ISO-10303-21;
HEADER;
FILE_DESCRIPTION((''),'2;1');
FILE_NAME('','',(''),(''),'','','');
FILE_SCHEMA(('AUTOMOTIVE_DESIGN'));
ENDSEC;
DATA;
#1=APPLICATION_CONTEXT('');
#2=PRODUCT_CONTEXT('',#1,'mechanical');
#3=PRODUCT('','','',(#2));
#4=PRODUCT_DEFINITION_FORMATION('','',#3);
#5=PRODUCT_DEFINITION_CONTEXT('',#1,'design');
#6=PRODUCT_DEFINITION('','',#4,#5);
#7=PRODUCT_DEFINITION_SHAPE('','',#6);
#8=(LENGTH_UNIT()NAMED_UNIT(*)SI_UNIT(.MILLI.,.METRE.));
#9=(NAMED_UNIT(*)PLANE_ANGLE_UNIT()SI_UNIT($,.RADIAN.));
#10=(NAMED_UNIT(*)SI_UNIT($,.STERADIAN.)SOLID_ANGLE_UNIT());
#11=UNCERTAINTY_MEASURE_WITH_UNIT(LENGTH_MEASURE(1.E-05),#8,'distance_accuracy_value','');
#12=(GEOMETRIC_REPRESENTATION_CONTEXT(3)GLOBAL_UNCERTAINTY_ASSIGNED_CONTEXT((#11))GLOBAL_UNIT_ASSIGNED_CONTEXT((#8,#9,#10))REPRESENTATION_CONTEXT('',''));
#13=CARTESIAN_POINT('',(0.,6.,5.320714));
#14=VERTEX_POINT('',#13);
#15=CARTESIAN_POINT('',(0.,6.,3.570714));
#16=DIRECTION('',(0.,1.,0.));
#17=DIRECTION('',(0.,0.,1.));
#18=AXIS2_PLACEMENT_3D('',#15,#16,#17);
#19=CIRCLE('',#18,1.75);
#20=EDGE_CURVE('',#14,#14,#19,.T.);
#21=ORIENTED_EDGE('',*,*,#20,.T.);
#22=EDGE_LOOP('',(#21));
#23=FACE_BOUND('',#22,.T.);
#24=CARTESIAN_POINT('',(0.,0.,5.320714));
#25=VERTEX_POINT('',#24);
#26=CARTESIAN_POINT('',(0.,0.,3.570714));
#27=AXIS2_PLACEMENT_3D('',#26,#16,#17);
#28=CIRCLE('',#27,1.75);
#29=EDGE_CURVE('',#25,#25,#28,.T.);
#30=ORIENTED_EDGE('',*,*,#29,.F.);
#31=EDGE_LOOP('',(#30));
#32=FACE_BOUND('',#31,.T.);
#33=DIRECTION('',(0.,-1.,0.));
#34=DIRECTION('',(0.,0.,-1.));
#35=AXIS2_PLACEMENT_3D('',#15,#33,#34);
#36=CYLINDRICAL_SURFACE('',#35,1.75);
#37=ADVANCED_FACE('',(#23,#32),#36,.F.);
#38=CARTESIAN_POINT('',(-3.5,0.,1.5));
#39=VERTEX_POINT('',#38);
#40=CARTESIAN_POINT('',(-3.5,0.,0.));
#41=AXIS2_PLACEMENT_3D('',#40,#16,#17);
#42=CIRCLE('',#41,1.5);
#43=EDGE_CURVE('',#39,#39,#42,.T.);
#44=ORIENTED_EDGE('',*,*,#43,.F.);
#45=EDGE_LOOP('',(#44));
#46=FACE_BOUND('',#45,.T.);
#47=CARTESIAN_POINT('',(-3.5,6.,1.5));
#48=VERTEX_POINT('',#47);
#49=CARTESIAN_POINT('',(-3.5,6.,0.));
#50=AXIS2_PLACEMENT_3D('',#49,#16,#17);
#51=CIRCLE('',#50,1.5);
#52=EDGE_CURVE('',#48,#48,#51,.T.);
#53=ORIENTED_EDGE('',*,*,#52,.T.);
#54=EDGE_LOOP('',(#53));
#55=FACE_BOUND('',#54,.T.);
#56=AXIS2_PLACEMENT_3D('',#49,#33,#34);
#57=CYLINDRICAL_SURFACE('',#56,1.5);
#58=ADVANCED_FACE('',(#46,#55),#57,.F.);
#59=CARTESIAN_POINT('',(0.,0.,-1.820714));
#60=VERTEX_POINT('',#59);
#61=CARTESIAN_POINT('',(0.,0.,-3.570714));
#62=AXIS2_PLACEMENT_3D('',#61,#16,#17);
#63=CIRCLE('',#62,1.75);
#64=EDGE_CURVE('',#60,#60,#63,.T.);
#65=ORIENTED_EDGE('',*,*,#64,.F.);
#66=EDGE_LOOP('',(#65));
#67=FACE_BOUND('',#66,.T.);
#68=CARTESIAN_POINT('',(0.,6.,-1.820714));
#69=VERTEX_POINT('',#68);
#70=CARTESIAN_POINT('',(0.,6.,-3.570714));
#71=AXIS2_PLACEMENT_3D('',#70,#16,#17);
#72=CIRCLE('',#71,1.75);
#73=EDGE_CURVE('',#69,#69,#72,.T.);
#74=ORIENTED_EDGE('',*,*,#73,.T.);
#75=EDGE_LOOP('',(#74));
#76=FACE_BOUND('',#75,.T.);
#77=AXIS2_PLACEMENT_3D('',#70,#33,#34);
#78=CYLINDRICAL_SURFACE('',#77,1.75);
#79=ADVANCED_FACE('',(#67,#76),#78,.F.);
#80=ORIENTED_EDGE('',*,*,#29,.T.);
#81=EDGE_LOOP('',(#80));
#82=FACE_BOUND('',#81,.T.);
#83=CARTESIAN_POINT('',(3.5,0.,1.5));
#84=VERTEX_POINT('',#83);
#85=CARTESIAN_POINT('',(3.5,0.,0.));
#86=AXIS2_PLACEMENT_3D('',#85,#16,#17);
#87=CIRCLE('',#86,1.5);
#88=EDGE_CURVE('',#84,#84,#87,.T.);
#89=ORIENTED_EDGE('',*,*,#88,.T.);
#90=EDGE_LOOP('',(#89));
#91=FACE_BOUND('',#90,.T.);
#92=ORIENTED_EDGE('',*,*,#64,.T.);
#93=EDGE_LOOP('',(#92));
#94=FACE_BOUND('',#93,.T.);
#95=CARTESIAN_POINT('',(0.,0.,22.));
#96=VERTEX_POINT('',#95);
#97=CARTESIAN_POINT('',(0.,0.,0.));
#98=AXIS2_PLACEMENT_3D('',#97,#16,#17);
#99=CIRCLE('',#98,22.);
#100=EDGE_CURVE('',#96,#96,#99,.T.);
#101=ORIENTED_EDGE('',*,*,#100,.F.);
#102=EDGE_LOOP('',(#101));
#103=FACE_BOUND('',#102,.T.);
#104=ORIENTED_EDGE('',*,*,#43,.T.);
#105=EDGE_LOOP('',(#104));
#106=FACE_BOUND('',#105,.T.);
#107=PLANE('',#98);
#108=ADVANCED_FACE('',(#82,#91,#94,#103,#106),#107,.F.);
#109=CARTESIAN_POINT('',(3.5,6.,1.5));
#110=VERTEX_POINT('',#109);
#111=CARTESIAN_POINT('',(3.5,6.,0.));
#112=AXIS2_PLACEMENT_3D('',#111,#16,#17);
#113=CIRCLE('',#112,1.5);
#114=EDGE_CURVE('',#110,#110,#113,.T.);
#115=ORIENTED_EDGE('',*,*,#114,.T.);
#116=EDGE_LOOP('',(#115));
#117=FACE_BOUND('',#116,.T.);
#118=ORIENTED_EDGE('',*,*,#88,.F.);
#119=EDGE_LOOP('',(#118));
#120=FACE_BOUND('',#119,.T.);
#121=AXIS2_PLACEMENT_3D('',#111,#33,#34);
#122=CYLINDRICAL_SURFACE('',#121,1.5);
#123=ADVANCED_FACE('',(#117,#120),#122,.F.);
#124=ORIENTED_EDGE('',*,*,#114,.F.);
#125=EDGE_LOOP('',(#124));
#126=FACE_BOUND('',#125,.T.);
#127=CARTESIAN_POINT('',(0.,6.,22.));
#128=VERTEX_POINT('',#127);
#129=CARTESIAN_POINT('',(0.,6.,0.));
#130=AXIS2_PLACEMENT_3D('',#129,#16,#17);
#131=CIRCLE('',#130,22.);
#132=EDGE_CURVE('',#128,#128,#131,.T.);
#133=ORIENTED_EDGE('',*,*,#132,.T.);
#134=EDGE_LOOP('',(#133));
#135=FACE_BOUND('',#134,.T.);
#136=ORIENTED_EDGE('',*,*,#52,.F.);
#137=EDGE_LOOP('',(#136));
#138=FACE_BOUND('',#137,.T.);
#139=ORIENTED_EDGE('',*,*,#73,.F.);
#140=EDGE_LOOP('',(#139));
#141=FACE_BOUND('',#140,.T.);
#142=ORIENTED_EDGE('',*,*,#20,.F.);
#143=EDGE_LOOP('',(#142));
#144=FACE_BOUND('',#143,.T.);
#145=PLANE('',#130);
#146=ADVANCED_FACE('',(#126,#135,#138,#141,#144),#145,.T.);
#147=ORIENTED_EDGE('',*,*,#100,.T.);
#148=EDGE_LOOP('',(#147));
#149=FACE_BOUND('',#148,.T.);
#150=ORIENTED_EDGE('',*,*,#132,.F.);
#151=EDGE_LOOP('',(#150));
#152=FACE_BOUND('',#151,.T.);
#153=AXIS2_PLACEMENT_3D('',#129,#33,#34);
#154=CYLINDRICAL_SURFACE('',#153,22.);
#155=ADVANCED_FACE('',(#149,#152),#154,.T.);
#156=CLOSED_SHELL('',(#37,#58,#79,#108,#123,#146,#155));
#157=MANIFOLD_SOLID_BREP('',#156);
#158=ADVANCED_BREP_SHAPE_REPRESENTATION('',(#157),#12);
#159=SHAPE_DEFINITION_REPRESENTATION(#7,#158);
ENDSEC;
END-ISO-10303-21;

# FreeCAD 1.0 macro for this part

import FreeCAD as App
import Part
import Sketcher
from FreeCAD import Vector

doc = App.newDocument("Part")
body = doc.addObject("PartDesign::Body", "Body")

# Sketch on XZ plane
sketch1 = body.newObject("Sketcher::SketchObject", "Sketch")
sketch1.AttachmentSupport = (doc.getObject("XZ_Plane"), [""])
sketch1.MapMode = "FlatFace"
sketch1.addGeometry([
    Part.Circle(Vector(0, 0, 0), Vector(0, 0, 1), 22),  # 0
    Part.Circle(Vector(0, 3.6, 0), Vector(0, 0, 1), 1.8),  # 1
    Part.Circle(Vector(-3.5, 0, 0), Vector(0, 0, 1), 1.5),  # 2
    Part.Circle(Vector(3.5, 0, 0), Vector(0, 0, 1), 1.5),  # 3
    Part.Circle(Vector(0, -3.6, 0), Vector(0, 0, 1), 1.8),  # 4
], False)
sketch1.addConstraint([
    Sketcher.Constraint("Coincident", 0, 3, -1, 1),
    Sketcher.Constraint("Equal", 2, 3),
    Sketcher.Constraint("Equal", 1, 4),
    Sketcher.Constraint("Symmetric", 2, 3, 3, 3, -1, 1),
    Sketcher.Constraint("Symmetric", 1, 3, 4, 3, -1, 1),
    Sketcher.Constraint("PointOnObject", 1, 3, -2),
    Sketcher.Constraint("PointOnObject", 2, 3, -1),
    Sketcher.Constraint("Diameter", 0, 44.0),
    Sketcher.Constraint("Diameter", 2, 3.0),
    Sketcher.Constraint("Diameter", 1, 3.5),
    Sketcher.Constraint("DistanceX", 2, 3, 3, 3, 7.0),
    Sketcher.Constraint("DistanceY", 4, 3, 1, 3, 7.141428),
])
pad1 = body.newObject("PartDesign::Pad", "Pad")
pad1.Profile = sketch1
pad1.Length = 6
pad1.Reversed = True

doc.recompute()
